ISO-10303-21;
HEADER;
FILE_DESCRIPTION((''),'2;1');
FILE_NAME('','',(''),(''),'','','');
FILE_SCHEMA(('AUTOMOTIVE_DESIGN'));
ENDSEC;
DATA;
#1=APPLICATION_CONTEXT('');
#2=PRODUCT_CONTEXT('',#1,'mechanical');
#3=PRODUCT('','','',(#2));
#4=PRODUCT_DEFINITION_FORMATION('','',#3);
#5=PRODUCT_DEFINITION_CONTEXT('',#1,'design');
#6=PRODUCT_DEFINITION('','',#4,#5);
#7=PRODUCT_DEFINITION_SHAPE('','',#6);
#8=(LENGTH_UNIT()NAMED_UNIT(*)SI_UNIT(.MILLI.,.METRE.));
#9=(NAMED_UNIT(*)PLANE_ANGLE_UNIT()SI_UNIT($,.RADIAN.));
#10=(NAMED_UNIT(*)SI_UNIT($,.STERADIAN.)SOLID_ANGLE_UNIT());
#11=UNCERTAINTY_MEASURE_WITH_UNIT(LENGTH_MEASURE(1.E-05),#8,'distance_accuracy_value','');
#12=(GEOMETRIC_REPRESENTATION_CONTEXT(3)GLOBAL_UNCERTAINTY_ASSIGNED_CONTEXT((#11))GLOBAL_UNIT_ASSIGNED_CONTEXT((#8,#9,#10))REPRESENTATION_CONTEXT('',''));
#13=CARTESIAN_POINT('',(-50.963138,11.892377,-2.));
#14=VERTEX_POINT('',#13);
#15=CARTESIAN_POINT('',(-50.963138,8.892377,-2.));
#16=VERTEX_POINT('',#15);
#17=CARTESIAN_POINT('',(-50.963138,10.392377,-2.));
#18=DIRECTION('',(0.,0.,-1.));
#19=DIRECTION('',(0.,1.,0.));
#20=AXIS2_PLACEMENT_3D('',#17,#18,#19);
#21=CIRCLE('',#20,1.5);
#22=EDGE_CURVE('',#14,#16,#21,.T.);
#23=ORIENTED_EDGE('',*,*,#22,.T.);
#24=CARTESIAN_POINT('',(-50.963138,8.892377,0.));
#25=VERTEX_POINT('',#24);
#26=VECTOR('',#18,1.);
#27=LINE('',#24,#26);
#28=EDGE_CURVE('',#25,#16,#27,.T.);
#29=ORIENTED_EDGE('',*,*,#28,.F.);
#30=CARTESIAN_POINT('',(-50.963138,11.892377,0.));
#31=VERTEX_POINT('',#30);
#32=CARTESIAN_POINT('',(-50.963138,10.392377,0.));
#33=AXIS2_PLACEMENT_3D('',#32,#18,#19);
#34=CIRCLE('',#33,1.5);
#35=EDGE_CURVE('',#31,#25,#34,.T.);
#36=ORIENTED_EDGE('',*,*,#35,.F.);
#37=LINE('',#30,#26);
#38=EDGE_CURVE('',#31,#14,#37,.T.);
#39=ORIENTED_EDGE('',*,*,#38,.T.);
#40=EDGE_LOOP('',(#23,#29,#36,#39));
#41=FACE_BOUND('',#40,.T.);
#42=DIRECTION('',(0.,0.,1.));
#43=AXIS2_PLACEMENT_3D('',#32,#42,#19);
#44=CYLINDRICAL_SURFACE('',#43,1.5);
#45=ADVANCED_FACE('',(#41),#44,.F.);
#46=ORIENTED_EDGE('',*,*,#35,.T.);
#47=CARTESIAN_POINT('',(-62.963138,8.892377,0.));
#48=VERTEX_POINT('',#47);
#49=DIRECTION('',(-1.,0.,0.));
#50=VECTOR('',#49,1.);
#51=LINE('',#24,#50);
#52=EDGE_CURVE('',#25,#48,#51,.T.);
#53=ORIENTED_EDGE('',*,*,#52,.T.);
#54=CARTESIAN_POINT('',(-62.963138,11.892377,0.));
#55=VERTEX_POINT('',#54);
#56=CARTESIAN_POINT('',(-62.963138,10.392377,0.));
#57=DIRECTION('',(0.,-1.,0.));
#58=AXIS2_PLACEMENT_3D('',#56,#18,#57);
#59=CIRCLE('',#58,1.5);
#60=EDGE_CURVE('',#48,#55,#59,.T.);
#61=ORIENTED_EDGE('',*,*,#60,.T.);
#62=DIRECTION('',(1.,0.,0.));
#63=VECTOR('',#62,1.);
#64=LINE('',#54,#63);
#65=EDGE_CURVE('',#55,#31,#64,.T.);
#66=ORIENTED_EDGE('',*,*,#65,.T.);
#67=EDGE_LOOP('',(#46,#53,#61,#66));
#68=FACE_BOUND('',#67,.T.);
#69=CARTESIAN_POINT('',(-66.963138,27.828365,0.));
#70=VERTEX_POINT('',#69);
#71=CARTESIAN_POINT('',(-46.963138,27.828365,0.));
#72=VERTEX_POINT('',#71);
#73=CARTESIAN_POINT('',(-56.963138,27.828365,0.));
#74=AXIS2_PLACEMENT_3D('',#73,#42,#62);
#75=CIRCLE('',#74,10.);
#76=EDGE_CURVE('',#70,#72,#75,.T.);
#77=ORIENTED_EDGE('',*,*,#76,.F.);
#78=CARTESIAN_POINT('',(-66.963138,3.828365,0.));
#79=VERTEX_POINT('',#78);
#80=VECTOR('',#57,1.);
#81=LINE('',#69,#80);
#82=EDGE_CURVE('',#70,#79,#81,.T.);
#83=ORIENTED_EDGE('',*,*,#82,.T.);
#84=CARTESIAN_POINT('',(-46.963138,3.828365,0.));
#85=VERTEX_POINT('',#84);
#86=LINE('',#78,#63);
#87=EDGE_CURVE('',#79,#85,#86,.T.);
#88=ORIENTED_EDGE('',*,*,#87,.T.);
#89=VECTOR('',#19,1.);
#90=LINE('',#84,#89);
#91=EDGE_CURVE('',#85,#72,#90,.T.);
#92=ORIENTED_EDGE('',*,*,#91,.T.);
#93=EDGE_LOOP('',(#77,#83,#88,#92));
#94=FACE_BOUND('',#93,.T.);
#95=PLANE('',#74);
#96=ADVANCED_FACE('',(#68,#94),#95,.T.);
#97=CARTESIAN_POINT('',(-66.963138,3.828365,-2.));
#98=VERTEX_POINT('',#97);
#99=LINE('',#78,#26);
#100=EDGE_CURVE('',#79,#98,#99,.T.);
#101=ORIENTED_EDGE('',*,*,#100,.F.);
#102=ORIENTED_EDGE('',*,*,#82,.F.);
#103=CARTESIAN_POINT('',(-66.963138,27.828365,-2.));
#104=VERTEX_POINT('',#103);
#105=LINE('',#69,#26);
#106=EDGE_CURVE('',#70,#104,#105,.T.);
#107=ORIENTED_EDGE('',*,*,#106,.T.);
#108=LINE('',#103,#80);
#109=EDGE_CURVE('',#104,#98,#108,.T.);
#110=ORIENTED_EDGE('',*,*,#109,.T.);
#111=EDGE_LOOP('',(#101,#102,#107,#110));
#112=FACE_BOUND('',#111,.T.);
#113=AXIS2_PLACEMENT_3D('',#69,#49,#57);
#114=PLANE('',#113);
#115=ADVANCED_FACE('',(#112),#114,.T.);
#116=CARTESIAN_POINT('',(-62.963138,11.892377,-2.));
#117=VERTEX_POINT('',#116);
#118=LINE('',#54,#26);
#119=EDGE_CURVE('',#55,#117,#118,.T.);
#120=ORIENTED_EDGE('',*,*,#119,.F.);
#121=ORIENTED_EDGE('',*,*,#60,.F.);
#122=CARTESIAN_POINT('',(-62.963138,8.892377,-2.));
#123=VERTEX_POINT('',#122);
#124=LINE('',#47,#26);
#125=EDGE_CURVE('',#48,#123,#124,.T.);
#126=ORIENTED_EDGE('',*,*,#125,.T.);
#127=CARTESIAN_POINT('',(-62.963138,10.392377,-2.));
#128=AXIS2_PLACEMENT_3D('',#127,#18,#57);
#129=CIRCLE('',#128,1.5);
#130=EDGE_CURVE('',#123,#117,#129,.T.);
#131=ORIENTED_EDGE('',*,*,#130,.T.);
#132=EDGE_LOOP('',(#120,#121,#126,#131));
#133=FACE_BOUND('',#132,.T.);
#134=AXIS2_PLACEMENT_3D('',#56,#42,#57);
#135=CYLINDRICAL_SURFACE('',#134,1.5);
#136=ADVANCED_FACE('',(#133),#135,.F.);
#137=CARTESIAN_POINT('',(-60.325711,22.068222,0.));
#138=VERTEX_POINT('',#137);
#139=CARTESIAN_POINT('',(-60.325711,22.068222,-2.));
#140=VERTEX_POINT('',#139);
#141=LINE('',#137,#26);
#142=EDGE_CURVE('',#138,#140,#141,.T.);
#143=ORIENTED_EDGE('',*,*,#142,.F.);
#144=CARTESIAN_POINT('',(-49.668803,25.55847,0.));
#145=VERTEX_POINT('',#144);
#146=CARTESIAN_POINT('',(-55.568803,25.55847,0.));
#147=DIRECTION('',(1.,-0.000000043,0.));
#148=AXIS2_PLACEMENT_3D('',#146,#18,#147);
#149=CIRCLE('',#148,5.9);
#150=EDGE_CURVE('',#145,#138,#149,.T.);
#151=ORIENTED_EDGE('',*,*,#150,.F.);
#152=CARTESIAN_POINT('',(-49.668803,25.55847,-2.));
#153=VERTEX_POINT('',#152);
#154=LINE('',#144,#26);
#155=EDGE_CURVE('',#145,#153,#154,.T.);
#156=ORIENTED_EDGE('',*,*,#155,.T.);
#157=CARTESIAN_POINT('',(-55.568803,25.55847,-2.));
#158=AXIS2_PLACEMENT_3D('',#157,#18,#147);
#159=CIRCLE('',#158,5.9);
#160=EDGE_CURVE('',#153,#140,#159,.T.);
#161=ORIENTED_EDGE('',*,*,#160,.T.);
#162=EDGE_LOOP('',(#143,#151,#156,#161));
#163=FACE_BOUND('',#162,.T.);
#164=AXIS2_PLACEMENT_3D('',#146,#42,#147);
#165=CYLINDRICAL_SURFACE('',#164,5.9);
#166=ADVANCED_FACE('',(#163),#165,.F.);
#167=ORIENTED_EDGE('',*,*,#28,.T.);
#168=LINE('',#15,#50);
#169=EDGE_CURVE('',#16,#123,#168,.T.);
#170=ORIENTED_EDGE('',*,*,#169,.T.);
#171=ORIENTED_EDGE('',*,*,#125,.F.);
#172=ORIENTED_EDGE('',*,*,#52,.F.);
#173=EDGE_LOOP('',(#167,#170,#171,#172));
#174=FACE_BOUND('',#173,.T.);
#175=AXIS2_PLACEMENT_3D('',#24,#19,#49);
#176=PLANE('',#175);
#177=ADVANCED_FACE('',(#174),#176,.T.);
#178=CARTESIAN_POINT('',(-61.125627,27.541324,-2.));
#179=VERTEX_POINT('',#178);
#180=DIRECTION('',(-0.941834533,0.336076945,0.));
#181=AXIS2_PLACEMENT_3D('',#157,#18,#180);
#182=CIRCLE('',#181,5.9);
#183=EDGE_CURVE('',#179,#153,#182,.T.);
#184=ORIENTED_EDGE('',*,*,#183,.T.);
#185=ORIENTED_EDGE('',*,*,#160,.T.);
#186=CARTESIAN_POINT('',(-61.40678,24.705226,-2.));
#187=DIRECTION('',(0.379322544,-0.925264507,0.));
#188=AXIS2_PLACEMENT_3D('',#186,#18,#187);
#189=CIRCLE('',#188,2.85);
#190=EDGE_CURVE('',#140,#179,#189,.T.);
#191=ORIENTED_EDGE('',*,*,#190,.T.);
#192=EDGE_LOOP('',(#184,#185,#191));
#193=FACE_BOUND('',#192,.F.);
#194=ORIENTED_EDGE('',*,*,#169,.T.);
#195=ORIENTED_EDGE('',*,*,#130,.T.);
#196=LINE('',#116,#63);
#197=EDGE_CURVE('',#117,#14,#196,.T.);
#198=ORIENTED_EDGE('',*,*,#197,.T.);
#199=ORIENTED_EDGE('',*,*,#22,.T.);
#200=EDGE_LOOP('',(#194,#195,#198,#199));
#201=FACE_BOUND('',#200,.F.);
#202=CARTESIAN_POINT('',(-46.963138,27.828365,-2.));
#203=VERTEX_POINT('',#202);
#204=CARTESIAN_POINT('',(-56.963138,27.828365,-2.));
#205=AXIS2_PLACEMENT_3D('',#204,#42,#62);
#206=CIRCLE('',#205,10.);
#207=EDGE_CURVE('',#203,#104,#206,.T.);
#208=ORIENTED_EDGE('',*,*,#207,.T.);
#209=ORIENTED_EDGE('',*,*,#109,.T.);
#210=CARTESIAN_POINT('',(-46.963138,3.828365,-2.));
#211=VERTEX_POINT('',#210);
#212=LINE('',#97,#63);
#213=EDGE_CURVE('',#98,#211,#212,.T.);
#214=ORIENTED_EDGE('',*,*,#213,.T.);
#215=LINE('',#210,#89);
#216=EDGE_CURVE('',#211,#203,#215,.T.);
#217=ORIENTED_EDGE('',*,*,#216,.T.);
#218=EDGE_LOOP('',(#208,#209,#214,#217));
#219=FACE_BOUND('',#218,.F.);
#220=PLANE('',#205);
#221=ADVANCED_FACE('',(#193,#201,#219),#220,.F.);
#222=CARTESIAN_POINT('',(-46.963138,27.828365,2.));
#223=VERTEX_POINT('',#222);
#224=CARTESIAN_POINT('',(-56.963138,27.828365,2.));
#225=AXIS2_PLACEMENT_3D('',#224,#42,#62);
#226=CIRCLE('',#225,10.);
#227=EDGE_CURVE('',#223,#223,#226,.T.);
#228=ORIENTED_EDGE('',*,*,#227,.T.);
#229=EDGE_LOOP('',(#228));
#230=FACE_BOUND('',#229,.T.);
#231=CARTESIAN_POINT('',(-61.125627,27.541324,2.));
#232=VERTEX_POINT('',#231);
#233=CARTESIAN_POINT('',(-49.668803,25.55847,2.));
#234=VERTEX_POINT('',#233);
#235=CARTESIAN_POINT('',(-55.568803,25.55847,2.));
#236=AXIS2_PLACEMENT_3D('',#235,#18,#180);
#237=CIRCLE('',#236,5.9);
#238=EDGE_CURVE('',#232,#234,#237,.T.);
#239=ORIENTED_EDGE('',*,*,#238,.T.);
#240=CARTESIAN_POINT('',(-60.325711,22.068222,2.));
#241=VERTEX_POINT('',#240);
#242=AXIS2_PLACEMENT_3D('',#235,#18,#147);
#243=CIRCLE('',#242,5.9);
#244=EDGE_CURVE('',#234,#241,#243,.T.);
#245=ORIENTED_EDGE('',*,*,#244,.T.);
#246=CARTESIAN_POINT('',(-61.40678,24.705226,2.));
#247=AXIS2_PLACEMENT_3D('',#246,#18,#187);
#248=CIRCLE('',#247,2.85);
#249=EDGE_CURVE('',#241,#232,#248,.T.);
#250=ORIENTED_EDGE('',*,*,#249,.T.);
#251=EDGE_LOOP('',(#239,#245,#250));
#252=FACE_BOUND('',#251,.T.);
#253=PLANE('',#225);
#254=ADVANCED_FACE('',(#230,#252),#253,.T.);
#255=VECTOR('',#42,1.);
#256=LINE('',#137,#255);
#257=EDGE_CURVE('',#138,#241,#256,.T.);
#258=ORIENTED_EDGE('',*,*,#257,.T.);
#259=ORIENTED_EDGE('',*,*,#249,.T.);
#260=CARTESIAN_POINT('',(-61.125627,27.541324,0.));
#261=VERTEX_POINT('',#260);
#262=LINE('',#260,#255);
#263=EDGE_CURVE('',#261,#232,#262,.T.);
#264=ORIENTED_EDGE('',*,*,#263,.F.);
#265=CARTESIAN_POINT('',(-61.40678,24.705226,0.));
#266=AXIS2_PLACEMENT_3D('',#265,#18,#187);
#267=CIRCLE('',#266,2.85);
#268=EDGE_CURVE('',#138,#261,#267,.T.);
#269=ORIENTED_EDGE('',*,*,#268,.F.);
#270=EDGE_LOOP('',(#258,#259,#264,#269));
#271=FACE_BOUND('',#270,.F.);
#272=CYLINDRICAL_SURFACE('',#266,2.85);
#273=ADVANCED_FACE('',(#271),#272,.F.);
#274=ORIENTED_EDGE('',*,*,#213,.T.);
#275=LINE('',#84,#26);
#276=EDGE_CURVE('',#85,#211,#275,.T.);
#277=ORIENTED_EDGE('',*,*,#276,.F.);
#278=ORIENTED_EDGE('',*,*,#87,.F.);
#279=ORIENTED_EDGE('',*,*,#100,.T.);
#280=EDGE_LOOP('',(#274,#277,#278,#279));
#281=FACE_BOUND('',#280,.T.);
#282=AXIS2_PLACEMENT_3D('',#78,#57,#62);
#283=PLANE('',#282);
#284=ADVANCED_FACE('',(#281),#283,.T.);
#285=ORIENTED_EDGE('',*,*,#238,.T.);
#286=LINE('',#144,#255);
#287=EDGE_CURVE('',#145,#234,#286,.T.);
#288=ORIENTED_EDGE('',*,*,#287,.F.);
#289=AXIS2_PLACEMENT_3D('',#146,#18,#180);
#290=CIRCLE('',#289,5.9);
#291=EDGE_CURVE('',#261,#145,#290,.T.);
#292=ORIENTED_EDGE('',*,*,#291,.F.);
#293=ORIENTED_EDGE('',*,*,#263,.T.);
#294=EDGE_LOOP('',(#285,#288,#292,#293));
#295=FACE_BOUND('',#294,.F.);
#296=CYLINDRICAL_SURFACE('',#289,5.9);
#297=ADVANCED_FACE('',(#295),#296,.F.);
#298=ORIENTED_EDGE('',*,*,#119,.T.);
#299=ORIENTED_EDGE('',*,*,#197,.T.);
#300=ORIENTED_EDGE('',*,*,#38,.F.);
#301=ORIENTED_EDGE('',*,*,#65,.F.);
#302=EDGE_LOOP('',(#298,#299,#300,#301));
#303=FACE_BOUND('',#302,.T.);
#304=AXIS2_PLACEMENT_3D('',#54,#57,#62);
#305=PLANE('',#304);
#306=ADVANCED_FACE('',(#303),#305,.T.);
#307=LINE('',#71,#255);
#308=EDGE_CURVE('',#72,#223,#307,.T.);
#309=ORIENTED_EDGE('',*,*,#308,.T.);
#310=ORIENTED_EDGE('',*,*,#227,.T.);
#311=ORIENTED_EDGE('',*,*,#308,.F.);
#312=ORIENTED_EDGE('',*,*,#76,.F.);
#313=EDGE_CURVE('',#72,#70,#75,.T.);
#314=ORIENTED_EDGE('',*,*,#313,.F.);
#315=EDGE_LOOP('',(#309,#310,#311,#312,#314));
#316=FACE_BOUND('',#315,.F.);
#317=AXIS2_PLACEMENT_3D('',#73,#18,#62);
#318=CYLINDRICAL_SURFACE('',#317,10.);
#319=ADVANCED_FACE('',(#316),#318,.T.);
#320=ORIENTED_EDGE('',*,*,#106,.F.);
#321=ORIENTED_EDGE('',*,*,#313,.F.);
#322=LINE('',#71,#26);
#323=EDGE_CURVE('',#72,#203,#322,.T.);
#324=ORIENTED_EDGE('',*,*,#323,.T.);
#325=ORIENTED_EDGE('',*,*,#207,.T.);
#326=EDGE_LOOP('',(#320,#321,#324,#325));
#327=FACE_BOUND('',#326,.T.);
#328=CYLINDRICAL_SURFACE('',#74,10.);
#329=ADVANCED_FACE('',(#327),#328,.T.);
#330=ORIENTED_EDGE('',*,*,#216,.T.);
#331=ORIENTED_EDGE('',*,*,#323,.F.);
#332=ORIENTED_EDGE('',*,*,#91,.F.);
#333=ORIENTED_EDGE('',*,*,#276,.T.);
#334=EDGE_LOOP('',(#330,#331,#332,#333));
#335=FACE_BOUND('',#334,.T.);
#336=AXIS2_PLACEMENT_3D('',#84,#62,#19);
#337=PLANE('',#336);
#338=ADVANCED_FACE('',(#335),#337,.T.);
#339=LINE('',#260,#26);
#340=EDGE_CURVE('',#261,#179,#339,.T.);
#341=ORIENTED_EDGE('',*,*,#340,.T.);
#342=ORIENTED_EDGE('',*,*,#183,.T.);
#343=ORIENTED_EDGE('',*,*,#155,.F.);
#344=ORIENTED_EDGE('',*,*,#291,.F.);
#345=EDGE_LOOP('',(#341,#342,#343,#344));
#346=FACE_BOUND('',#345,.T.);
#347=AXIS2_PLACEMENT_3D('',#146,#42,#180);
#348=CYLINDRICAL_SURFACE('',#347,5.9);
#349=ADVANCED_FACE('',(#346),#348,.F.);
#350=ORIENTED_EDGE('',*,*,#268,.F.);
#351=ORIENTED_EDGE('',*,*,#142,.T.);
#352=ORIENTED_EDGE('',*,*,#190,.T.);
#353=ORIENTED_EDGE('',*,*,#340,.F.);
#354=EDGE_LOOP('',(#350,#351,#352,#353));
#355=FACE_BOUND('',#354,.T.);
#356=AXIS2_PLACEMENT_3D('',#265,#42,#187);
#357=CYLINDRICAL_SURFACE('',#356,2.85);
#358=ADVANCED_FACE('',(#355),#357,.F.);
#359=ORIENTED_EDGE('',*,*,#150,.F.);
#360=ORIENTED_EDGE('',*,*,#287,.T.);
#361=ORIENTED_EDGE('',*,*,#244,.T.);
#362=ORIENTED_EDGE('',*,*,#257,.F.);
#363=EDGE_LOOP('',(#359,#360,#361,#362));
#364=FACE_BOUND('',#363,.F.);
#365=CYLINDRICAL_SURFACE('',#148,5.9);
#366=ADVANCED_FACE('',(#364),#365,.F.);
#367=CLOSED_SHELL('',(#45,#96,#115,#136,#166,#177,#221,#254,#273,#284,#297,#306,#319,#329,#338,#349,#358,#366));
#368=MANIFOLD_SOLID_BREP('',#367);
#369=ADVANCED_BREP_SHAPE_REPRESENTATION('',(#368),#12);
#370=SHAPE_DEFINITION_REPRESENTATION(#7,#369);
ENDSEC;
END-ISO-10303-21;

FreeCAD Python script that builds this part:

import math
import FreeCAD as App
import Part
import Sketcher

V = App.Vector
Q = App.Units.Quantity

doc = App.newDocument("Part")
params = doc.addObject("Spreadsheet::Sheet", "Params")
for row, (alias, value) in enumerate([
    ("sketch1_diameter", "20 mm"),
    ("sketch1_radius", "5.9 mm"),
    ("sketch1_radius2", "2.85 mm"),
    ("pad1_length", "2 mm"),
    ("sketch2_radius", "10 mm"),
    ("sketch2_radius2", "1.5 mm"),
    ("sketch2_radius3", "5.9 mm"),
    ("sketch2_width", "12 mm"),
    ("sketch2_height", "24 mm"),
    ("pad2_length", "2 mm"),
], start=1):
    params.set(f"A{row}", alias)
    params.set(f"B{row}", "=" + value)
    params.setAlias(f"B{row}", alias)

body = doc.addObject("PartDesign::Body", "Body")

sketch1 = body.newObject("Sketcher::SketchObject", "Sketch")
sketch1.AttachmentSupport = (doc.getObject("XY_Plane"), [""])
sketch1.MapMode = "FlatFace"
sketch1.addGeometry(Part.Circle(V(-56.963138, 27.828365, 0), V(0, 0, 1), 10), False)
sketch1.addGeometry(Part.ArcOfCircle(Part.Circle(V(-61.40678, 24.705226, 0), V(0, 0, 1), 2.85), math.radians(84.338548), math.radians(292.291726)), False)
sketch1.addGeometry(Part.ArcOfCircle(Part.Circle(V(-55.568803, 25.55847, 0), V(0, 0, 1), 5.9), math.radians(0), math.radians(160.36196)), False)
sketch1.addGeometry(Part.ArcOfCircle(Part.Circle(V(-55.568803, 25.55847, 0), V(0, 0, 1), 5.9), math.radians(-143.73168), math.radians(-0.000002)), False)
sketch1.addConstraint(Sketcher.Constraint("Coincident", 1, 1, 2, 2))
sketch1.addConstraint(Sketcher.Constraint("Tangent", 2, 1, 3, 2))
sketch1.addConstraint(Sketcher.Constraint("Coincident", 3, 1, 1, 2))
sketch1.addConstraint(Sketcher.Constraint("Equal", 2, 3))
sketch1.addConstraint(Sketcher.Constraint("Horizontal", 3, 3, 2, 1))
sketch1.addConstraint(Sketcher.Constraint("Diameter", 0, Q("20 mm")))
sketch1.addConstraint(Sketcher.Constraint("Radius", 2, Q("5.9 mm")))
sketch1.addConstraint(Sketcher.Constraint("Radius", 1, Q("2.85 mm")))
sketch1.addConstraint(Sketcher.Constraint("DistanceY", 1, 3, 1, 1, Q("2.836098 mm")))
sketch1.addConstraint(Sketcher.Constraint("DistanceY", 3, 1, 1, 1, Q("5.473102 mm")))
sketch1.addConstraint(Sketcher.Constraint("DistanceX", 1, 3, -1, 1, Q("61.40678 mm")))
sketch1.addConstraint(Sketcher.Constraint("DistanceY", -1, 1, 2, 3, Q("25.55847 mm")))
sketch1.addConstraint(Sketcher.Constraint("DistanceY", 1, 3, 0, 3, Q("3.123139 mm")))
sketch1.addConstraint(Sketcher.Constraint("DistanceX", 1, 1, 0, 3, Q("4.162489 mm")))
sketch1.setExpression("Constraints[5]", "Params.sketch1_diameter")
sketch1.setExpression("Constraints[6]", "Params.sketch1_radius")
sketch1.setExpression("Constraints[7]", "Params.sketch1_radius2")
pad1 = body.newObject("PartDesign::Pad", "Pad")
pad1.Profile = sketch1
pad1.setExpression("Length", "Params.pad1_length")

sketch2 = body.newObject("Sketcher::SketchObject", "Sketch001")
sketch2.AttachmentSupport = (doc.getObject("XY_Plane"), [""])
sketch2.MapMode = "FlatFace"
sketch2.addGeometry(Part.ArcOfCircle(Part.Circle(V(-56.963138, 27.828365, 0), V(0, 0, 1), 10), math.radians(0), math.radians(180)), False)
sketch2.addGeometry(Part.LineSegment(V(-66.963138, 27.828365, 0), V(-66.963138, 3.828365, 0)), False)
sketch2.addGeometry(Part.LineSegment(V(-66.963138, 3.828365, 0), V(-46.963138, 3.828365, 0)), False)
sketch2.addGeometry(Part.LineSegment(V(-46.963138, 3.828365, 0), V(-46.963138, 27.828365, 0)), False)
sketch2.addGeometry(Part.LineSegment(V(-50.963138, 8.892377, 0), V(-62.963138, 8.892377, 0)), False)
sketch2.addGeometry(Part.ArcOfCircle(Part.Circle(V(-62.963138, 10.392377, 0), V(0, 0, 1), 1.5), math.radians(90), math.radians(270)), False)
sketch2.addGeometry(Part.LineSegment(V(-62.963138, 11.892377, 0), V(-50.963138, 11.892377, 0)), False)
sketch2.addGeometry(Part.ArcOfCircle(Part.Circle(V(-50.963138, 10.392377, 0), V(0, 0, 1), 1.5), math.radians(-90), math.radians(90)), False)
sketch2.addGeometry(Part.ArcOfCircle(Part.Circle(V(-61.40678, 24.705226, 0), V(0, 0, 1), 2.85), math.radians(84.338548), math.radians(292.291726)), False)
sketch2.addGeometry(Part.ArcOfCircle(Part.Circle(V(-55.568803, 25.55847, 0), V(0, 0, 1), 5.9), math.radians(0), math.radians(160.36196)), False)
sketch2.addGeometry(Part.ArcOfCircle(Part.Circle(V(-55.568803, 25.55847, 0), V(0, 0, 1), 5.9), math.radians(-143.73168), math.radians(-0.000002)), False)
sketch2.addConstraint(Sketcher.Constraint("Tangent", 0, 2, 1, 1))
sketch2.addConstraint(Sketcher.Constraint("Coincident", 1, 2, 2, 1))
sketch2.addConstraint(Sketcher.Constraint("Coincident", 2, 2, 3, 1))
sketch2.addConstraint(Sketcher.Constraint("Tangent", 3, 2, 0, 1))
sketch2.addConstraint(Sketcher.Constraint("Tangent", 4, 2, 5, 2))
sketch2.addConstraint(Sketcher.Constraint("Tangent", 5, 1, 6, 1))
sketch2.addConstraint(Sketcher.Constraint("Tangent", 6, 2, 7, 2))
sketch2.addConstraint(Sketcher.Constraint("Tangent", 7, 1, 4, 1))
sketch2.addConstraint(Sketcher.Constraint("Coincident", 8, 1, 9, 2))
sketch2.addConstraint(Sketcher.Constraint("Tangent", 9, 1, 10, 2))
sketch2.addConstraint(Sketcher.Constraint("Coincident", 10, 1, 8, 2))
sketch2.addConstraint(Sketcher.Constraint("Vertical", 1))
sketch2.addConstraint(Sketcher.Constraint("Horizontal", 2))
sketch2.addConstraint(Sketcher.Constraint("Vertical", 3))
sketch2.addConstraint(Sketcher.Constraint("Horizontal", 4))
sketch2.addConstraint(Sketcher.Constraint("Horizontal", 6))
sketch2.addConstraint(Sketcher.Constraint("Equal", 9, 10))
sketch2.addConstraint(Sketcher.Constraint("Horizontal", 10, 3, 9, 1))
sketch2.addConstraint(Sketcher.Constraint("Radius", 0, Q("10 mm")))
sketch2.addConstraint(Sketcher.Constraint("Radius", 5, Q("1.5 mm")))
sketch2.addConstraint(Sketcher.Constraint("Radius", 9, Q("5.9 mm")))
sketch2.addConstraint(Sketcher.Constraint("DistanceX", 4, 2, 4, 1, Q("12 mm")))
sketch2.addConstraint(Sketcher.Constraint("DistanceY", 1, 2, 1, 1, Q("24 mm")))
sketch2.addConstraint(Sketcher.Constraint("Radius", 8, Q("2.85 mm")))
sketch2.addConstraint(Sketcher.Constraint("DistanceX", 5, 3, 0, 3, Q("6 mm")))
sketch2.addConstraint(Sketcher.Constraint("DistanceY", 8, 3, 8, 1, Q("2.836098 mm")))
sketch2.addConstraint(Sketcher.Constraint("DistanceY", 10, 1, 8, 1, Q("5.473102 mm")))
sketch2.addConstraint(Sketcher.Constraint("DistanceX", 8, 3, -1, 1, Q("61.40678 mm")))
sketch2.addConstraint(Sketcher.Constraint("DistanceY", -1, 1, 9, 3, Q("25.55847 mm")))
sketch2.addConstraint(Sketcher.Constraint("DistanceX", 0, 2, -1, 1, Q("66.963138 mm")))
sketch2.addConstraint(Sketcher.Constraint("DistanceY", 5, 3, 0, 3, Q("17.435988 mm")))
sketch2.addConstraint(Sketcher.Constraint("DistanceY", 8, 3, 0, 3, Q("3.123139 mm")))
sketch2.setExpression("Constraints[18]", "Params.sketch2_radius")
sketch2.setExpression("Constraints[19]", "Params.sketch2_radius2")
sketch2.setExpression("Constraints[20]", "Params.sketch2_radius3")
sketch2.setExpression("Constraints[21]", "Params.sketch2_width")
sketch2.setExpression("Constraints[22]", "Params.sketch2_height")
pad2 = body.newObject("PartDesign::Pad", "Pad001")
pad2.Profile = sketch2
pad2.setExpression("Length", "Params.pad2_length")
pad2.Reversed = True

doc.recompute()
